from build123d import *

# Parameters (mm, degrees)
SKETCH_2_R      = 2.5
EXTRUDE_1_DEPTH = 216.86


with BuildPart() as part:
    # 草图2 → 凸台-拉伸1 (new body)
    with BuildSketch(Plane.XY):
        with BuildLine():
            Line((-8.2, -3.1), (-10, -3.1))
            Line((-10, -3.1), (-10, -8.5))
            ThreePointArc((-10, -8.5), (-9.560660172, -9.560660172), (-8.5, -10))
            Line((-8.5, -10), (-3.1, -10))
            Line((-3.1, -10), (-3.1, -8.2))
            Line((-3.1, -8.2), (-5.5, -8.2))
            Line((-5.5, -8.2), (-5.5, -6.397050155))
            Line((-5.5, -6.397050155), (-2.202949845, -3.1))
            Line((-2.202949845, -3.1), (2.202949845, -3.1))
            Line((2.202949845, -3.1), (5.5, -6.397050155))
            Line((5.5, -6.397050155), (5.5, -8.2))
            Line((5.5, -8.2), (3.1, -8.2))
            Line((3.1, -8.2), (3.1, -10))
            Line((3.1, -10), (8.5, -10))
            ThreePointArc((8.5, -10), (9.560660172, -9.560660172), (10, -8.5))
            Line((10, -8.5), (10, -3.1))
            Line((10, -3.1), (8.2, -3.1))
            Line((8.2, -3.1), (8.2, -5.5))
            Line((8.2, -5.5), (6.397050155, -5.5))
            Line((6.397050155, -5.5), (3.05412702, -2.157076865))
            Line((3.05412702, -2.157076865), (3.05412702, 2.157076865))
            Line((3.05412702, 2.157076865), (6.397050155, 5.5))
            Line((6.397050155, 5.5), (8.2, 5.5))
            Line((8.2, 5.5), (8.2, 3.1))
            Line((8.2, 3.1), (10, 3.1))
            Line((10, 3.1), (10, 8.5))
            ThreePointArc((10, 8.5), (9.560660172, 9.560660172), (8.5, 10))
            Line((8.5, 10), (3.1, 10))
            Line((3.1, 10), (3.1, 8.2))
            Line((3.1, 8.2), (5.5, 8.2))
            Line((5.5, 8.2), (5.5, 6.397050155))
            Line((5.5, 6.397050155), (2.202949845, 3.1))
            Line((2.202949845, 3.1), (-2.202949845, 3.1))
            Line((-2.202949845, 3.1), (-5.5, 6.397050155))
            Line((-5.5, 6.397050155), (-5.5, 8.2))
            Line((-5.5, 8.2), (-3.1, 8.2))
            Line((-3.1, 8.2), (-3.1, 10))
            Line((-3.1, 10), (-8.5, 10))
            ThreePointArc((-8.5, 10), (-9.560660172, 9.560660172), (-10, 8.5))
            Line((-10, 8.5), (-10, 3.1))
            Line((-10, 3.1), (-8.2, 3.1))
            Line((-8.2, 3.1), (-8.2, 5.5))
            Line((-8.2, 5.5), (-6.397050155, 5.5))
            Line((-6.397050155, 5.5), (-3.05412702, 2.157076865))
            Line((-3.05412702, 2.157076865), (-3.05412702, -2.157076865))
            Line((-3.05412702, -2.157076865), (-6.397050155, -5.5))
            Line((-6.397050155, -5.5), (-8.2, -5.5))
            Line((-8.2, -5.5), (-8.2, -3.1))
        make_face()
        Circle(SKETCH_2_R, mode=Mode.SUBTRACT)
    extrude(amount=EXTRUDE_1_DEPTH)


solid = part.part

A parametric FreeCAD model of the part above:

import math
import FreeCAD as App
import Part
import Sketcher

V = App.Vector

doc = App.newDocument("Part")
body = doc.addObject("PartDesign::Body", "Body")

sketch1 = body.newObject("Sketcher::SketchObject", "Sketch")
sketch1.AttachmentSupport = (doc.getObject("XY_Plane"), [""])
sketch1.MapMode = "FlatFace"
sketch1.addGeometry([
    Part.LineSegment(V(-8.2, -3.1, 0), V(-10, -3.1, 0)),
    Part.LineSegment(V(-10, -3.1, 0), V(-10, -8.5, 0)),
    Part.ArcOfCircle(Part.Circle(V(-8.5, -8.5, 0), V(0, 0, 1), 1.5), math.radians(180), math.radians(270)),
    Part.LineSegment(V(-8.5, -10, 0), V(-3.1, -10, 0)),
    Part.LineSegment(V(-3.1, -10, 0), V(-3.1, -8.2, 0)),
    Part.LineSegment(V(-3.1, -8.2, 0), V(-5.5, -8.2, 0)),
    Part.LineSegment(V(-5.5, -8.2, 0), V(-5.5, -6.4, 0)),
    Part.LineSegment(V(-5.5, -6.4, 0), V(-2.2, -3.1, 0)),
    Part.LineSegment(V(-2.2, -3.1, 0), V(2.2, -3.1, 0)),
    Part.LineSegment(V(2.2, -3.1, 0), V(5.5, -6.4, 0)),
    Part.LineSegment(V(5.5, -6.4, 0), V(5.5, -8.2, 0)),
    Part.LineSegment(V(5.5, -8.2, 0), V(3.1, -8.2, 0)),
    Part.LineSegment(V(3.1, -8.2, 0), V(3.1, -10, 0)),
    Part.LineSegment(V(3.1, -10, 0), V(8.5, -10, 0)),
    Part.ArcOfCircle(Part.Circle(V(8.5, -8.5, 0), V(0, 0, 1), 1.5), math.radians(-90), math.radians(0)),
    Part.LineSegment(V(10, -8.5, 0), V(10, -3.1, 0)),
    Part.LineSegment(V(10, -3.1, 0), V(8.2, -3.1, 0)),
    Part.LineSegment(V(8.2, -3.1, 0), V(8.2, -5.5, 0)),
    Part.LineSegment(V(8.2, -5.5, 0), V(6.4, -5.5, 0)),
    Part.LineSegment(V(6.4, -5.5, 0), V(3.1, -2.2, 0)),
    Part.LineSegment(V(3.1, -2.2, 0), V(3.1, 2.2, 0)),
    Part.LineSegment(V(3.1, 2.2, 0), V(6.4, 5.5, 0)),
    Part.LineSegment(V(6.4, 5.5, 0), V(8.2, 5.5, 0)),
    Part.LineSegment(V(8.2, 5.5, 0), V(8.2, 3.1, 0)),
    Part.LineSegment(V(8.2, 3.1, 0), V(10, 3.1, 0)),
    Part.LineSegment(V(10, 3.1, 0), V(10, 8.5, 0)),
    Part.ArcOfCircle(Part.Circle(V(8.5, 8.5, 0), V(0, 0, 1), 1.5), math.radians(0), math.radians(90)),
    Part.LineSegment(V(8.5, 10, 0), V(3.1, 10, 0)),
    Part.LineSegment(V(3.1, 10, 0), V(3.1, 8.2, 0)),
    Part.LineSegment(V(3.1, 8.2, 0), V(5.5, 8.2, 0)),
    Part.LineSegment(V(5.5, 8.2, 0), V(5.5, 6.4, 0)),
    Part.LineSegment(V(5.5, 6.4, 0), V(2.2, 3.1, 0)),
    Part.LineSegment(V(2.2, 3.1, 0), V(-2.2, 3.1, 0)),
    Part.LineSegment(V(-2.2, 3.1, 0), V(-5.5, 6.4, 0)),
    Part.LineSegment(V(-5.5, 6.4, 0), V(-5.5, 8.2, 0)),
    Part.LineSegment(V(-5.5, 8.2, 0), V(-3.1, 8.2, 0)),
    Part.LineSegment(V(-3.1, 8.2, 0), V(-3.1, 10, 0)),
    Part.LineSegment(V(-3.1, 10, 0), V(-8.5, 10, 0)),
    Part.ArcOfCircle(Part.Circle(V(-8.5, 8.5, 0), V(0, 0, 1), 1.5), math.radians(90), math.radians(180)),
    Part.LineSegment(V(-10, 8.5, 0), V(-10, 3.1, 0)),
    Part.LineSegment(V(-10, 3.1, 0), V(-8.2, 3.1, 0)),
    Part.LineSegment(V(-8.2, 3.1, 0), V(-8.2, 5.5, 0)),
    Part.LineSegment(V(-8.2, 5.5, 0), V(-6.4, 5.5, 0)),
    Part.LineSegment(V(-6.4, 5.5, 0), V(-3.1, 2.2, 0)),
    Part.LineSegment(V(-3.1, 2.2, 0), V(-3.1, -2.2, 0)),
    Part.LineSegment(V(-3.1, -2.2, 0), V(-6.4, -5.5, 0)),
    Part.LineSegment(V(-6.4, -5.5, 0), V(-8.2, -5.5, 0)),
    Part.LineSegment(V(-8.2, -5.5, 0), V(-8.2, -3.1, 0)),
    Part.Circle(V(0, 0, 0), V(0, 0, 1), 2.5),
], False)
sketch1.addConstraint([
    Sketcher.Constraint("Coincident", 0, 2, 1, 1),
    Sketcher.Constraint("Tangent", 1, 2, 2, 1),
    Sketcher.Constraint("Tangent", 2, 2, 3, 1),
    Sketcher.Constraint("Coincident", 3, 2, 4, 1),
    Sketcher.Constraint("Coincident", 4, 2, 5, 1),
    Sketcher.Constraint("Coincident", 5, 2, 6, 1),
    Sketcher.Constraint("Coincident", 6, 2, 7, 1),
    Sketcher.Constraint("Coincident", 7, 2, 8, 1),
    Sketcher.Constraint("Coincident", 8, 2, 9, 1),
    Sketcher.Constraint("Coincident", 9, 2, 10, 1),
    Sketcher.Constraint("Coincident", 10, 2, 11, 1),
    Sketcher.Constraint("Coincident", 11, 2, 12, 1),
    Sketcher.Constraint("Coincident", 12, 2, 13, 1),
    Sketcher.Constraint("Tangent", 13, 2, 14, 1),
    Sketcher.Constraint("Tangent", 14, 2, 15, 1),
    Sketcher.Constraint("Coincident", 15, 2, 16, 1),
    Sketcher.Constraint("Coincident", 16, 2, 17, 1),
    Sketcher.Constraint("Coincident", 17, 2, 18, 1),
    Sketcher.Constraint("Coincident", 18, 2, 19, 1),
    Sketcher.Constraint("Coincident", 19, 2, 20, 1),
    Sketcher.Constraint("Coincident", 20, 2, 21, 1),
    Sketcher.Constraint("Coincident", 21, 2, 22, 1),
    Sketcher.Constraint("Coincident", 22, 2, 23, 1),
    Sketcher.Constraint("Coincident", 23, 2, 24, 1),
    Sketcher.Constraint("Coincident", 24, 2, 25, 1),
    Sketcher.Constraint("Tangent", 25, 2, 26, 1),
    Sketcher.Constraint("Tangent", 26, 2, 27, 1),
    Sketcher.Constraint("Coincident", 27, 2, 28, 1),
    Sketcher.Constraint("Coincident", 28, 2, 29, 1),
    Sketcher.Constraint("Coincident", 29, 2, 30, 1),
    Sketcher.Constraint("Coincident", 30, 2, 31, 1),
    Sketcher.Constraint("Coincident", 31, 2, 32, 1),
    Sketcher.Constraint("Coincident", 32, 2, 33, 1),
    Sketcher.Constraint("Coincident", 33, 2, 34, 1),
    Sketcher.Constraint("Coincident", 34, 2, 35, 1),
    Sketcher.Constraint("Coincident", 35, 2, 36, 1),
    Sketcher.Constraint("Coincident", 36, 2, 37, 1),
    Sketcher.Constraint("Tangent", 37, 2, 38, 1),
    Sketcher.Constraint("Tangent", 38, 2, 39, 1),
    Sketcher.Constraint("Coincident", 39, 2, 40, 1),
    Sketcher.Constraint("Coincident", 40, 2, 41, 1),
    Sketcher.Constraint("Coincident", 41, 2, 42, 1),
    Sketcher.Constraint("Coincident", 42, 2, 43, 1),
    Sketcher.Constraint("Coincident", 43, 2, 44, 1),
    Sketcher.Constraint("Coincident", 44, 2, 45, 1),
    Sketcher.Constraint("Coincident", 45, 2, 46, 1),
    Sketcher.Constraint("Coincident", 46, 2, 47, 1),
    Sketcher.Constraint("Coincident", 47, 2, 0, 1),
    Sketcher.Constraint("Horizontal", 0),
    Sketcher.Constraint("Vertical", 1),
    Sketcher.Constraint("Horizontal", 3),
    Sketcher.Constraint("Vertical", 4),
    Sketcher.Constraint("Horizontal", 5),
    Sketcher.Constraint("Vertical", 6),
    Sketcher.Constraint("Horizontal", 8),
    Sketcher.Constraint("Vertical", 10),
    Sketcher.Constraint("Horizontal", 11),
    Sketcher.Constraint("Vertical", 12),
    Sketcher.Constraint("Horizontal", 13),
    Sketcher.Constraint("Vertical", 15),
    Sketcher.Constraint("Horizontal", 16),
    Sketcher.Constraint("Vertical", 17),
    Sketcher.Constraint("Horizontal", 18),
    Sketcher.Constraint("Vertical", 20),
    Sketcher.Constraint("Horizontal", 22),
    Sketcher.Constraint("Vertical", 23),
    Sketcher.Constraint("Horizontal", 24),
    Sketcher.Constraint("Vertical", 25),
    Sketcher.Constraint("Horizontal", 27),
    Sketcher.Constraint("Vertical", 28),
    Sketcher.Constraint("Horizontal", 29),
    Sketcher.Constraint("Vertical", 30),
    Sketcher.Constraint("Horizontal", 32),
    Sketcher.Constraint("Vertical", 34),
    Sketcher.Constraint("Horizontal", 35),
    Sketcher.Constraint("Vertical", 36),
    Sketcher.Constraint("Horizontal", 37),
    Sketcher.Constraint("Vertical", 39),
    Sketcher.Constraint("Horizontal", 40),
    Sketcher.Constraint("Vertical", 41),
    Sketcher.Constraint("Horizontal", 42),
    Sketcher.Constraint("Vertical", 44),
    Sketcher.Constraint("Horizontal", 46),
    Sketcher.Constraint("Vertical", 47),
    Sketcher.Constraint("Coincident", 48, 3, -1, 1),
    Sketcher.Constraint("Equal", 2, 14),
    Sketcher.Constraint("Equal", 14, 26),
    Sketcher.Constraint("Equal", 26, 38),
    Sketcher.Constraint("Symmetric", 2, 3, 26, 3, -1, 1),
    Sketcher.Constraint("Symmetric", 14, 3, 38, 3, -1, 1),
    Sketcher.Constraint("Symmetric", 4, 2, 28, 2, -1, 1),
    Sketcher.Constraint("Symmetric", 6, 2, 30, 2, -1, 1),
    Sketcher.Constraint("Symmetric", 7, 2, 31, 2, -1, 1),
    Sketcher.Constraint("Symmetric", 9, 2, 33, 2, -1, 1),
    Sketcher.Constraint("Symmetric", 11, 2, 35, 2, -1, 1),
    Sketcher.Constraint("Symmetric", 16, 2, 40, 2, -1, 1),
    Sketcher.Constraint("Symmetric", 18, 2, 42, 2, -1, 1),
    Sketcher.Constraint("Symmetric", 19, 2, 43, 2, -1, 1),
    Sketcher.Constraint("Symmetric", 21, 2, 45, 2, -1, 1),
    Sketcher.Constraint("Symmetric", 23, 2, 47, 2, -1, 1),
    Sketcher.Constraint("Symmetric", 2, 3, 14, 3, -2),
    Sketcher.Constraint("Symmetric", 6, 2, 9, 2, -2),
    Sketcher.Constraint("Symmetric", 4, 2, 11, 2, -2),
    Sketcher.Constraint("Symmetric", 23, 2, 40, 2, -2),
    Sketcher.Constraint("Symmetric", 21, 2, 42, 2, -2),
    Sketcher.Constraint("Perpendicular", 7, 9),
    Sketcher.Constraint("Parallel", 9, 19),
    Sketcher.Constraint("Perpendicular", 19, 21),
    Sketcher.Constraint("Perpendicular", 31, 33),
    Sketcher.Constraint("Perpendicular", 43, 45),
    Sketcher.Constraint("Horizontal", 0, 2, 7, 2),
    Sketcher.Constraint("Horizontal", 20, 2, 43, 2),
    Sketcher.Constraint("Equal", 37, 1),
    Sketcher.Constraint("Equal", 40, 4),
    Sketcher.Constraint("Equal", 46, 6),
    Sketcher.Constraint("Equal", 35, 17),
    Sketcher.Constraint("Diameter", 48, 5.0),
    Sketcher.Constraint("Radius", 2, 1.5),
    Sketcher.Constraint("DistanceX", 0, 2, 0, 1, 1.8),
    Sketcher.Constraint("DistanceX", 3, 1, 3, 2, 5.4),
    Sketcher.Constraint("DistanceX", 5, 2, 5, 1, 2.4),
    Sketcher.Constraint("DistanceX", 0, 2, -1, 1, 10.0),
    Sketcher.Constraint("DistanceY", 2, 2, -1, 1, 10.0),
    Sketcher.Constraint("DistanceX", 8, 1, 8, 2, 4.4059),
    Sketcher.Constraint("DistanceY", 20, 1, 20, 2, 4.314154),
])
pad1 = body.newObject("PartDesign::Pad", "Pad")
pad1.Profile = sketch1
pad1.Length = 216.86

doc.recompute()
